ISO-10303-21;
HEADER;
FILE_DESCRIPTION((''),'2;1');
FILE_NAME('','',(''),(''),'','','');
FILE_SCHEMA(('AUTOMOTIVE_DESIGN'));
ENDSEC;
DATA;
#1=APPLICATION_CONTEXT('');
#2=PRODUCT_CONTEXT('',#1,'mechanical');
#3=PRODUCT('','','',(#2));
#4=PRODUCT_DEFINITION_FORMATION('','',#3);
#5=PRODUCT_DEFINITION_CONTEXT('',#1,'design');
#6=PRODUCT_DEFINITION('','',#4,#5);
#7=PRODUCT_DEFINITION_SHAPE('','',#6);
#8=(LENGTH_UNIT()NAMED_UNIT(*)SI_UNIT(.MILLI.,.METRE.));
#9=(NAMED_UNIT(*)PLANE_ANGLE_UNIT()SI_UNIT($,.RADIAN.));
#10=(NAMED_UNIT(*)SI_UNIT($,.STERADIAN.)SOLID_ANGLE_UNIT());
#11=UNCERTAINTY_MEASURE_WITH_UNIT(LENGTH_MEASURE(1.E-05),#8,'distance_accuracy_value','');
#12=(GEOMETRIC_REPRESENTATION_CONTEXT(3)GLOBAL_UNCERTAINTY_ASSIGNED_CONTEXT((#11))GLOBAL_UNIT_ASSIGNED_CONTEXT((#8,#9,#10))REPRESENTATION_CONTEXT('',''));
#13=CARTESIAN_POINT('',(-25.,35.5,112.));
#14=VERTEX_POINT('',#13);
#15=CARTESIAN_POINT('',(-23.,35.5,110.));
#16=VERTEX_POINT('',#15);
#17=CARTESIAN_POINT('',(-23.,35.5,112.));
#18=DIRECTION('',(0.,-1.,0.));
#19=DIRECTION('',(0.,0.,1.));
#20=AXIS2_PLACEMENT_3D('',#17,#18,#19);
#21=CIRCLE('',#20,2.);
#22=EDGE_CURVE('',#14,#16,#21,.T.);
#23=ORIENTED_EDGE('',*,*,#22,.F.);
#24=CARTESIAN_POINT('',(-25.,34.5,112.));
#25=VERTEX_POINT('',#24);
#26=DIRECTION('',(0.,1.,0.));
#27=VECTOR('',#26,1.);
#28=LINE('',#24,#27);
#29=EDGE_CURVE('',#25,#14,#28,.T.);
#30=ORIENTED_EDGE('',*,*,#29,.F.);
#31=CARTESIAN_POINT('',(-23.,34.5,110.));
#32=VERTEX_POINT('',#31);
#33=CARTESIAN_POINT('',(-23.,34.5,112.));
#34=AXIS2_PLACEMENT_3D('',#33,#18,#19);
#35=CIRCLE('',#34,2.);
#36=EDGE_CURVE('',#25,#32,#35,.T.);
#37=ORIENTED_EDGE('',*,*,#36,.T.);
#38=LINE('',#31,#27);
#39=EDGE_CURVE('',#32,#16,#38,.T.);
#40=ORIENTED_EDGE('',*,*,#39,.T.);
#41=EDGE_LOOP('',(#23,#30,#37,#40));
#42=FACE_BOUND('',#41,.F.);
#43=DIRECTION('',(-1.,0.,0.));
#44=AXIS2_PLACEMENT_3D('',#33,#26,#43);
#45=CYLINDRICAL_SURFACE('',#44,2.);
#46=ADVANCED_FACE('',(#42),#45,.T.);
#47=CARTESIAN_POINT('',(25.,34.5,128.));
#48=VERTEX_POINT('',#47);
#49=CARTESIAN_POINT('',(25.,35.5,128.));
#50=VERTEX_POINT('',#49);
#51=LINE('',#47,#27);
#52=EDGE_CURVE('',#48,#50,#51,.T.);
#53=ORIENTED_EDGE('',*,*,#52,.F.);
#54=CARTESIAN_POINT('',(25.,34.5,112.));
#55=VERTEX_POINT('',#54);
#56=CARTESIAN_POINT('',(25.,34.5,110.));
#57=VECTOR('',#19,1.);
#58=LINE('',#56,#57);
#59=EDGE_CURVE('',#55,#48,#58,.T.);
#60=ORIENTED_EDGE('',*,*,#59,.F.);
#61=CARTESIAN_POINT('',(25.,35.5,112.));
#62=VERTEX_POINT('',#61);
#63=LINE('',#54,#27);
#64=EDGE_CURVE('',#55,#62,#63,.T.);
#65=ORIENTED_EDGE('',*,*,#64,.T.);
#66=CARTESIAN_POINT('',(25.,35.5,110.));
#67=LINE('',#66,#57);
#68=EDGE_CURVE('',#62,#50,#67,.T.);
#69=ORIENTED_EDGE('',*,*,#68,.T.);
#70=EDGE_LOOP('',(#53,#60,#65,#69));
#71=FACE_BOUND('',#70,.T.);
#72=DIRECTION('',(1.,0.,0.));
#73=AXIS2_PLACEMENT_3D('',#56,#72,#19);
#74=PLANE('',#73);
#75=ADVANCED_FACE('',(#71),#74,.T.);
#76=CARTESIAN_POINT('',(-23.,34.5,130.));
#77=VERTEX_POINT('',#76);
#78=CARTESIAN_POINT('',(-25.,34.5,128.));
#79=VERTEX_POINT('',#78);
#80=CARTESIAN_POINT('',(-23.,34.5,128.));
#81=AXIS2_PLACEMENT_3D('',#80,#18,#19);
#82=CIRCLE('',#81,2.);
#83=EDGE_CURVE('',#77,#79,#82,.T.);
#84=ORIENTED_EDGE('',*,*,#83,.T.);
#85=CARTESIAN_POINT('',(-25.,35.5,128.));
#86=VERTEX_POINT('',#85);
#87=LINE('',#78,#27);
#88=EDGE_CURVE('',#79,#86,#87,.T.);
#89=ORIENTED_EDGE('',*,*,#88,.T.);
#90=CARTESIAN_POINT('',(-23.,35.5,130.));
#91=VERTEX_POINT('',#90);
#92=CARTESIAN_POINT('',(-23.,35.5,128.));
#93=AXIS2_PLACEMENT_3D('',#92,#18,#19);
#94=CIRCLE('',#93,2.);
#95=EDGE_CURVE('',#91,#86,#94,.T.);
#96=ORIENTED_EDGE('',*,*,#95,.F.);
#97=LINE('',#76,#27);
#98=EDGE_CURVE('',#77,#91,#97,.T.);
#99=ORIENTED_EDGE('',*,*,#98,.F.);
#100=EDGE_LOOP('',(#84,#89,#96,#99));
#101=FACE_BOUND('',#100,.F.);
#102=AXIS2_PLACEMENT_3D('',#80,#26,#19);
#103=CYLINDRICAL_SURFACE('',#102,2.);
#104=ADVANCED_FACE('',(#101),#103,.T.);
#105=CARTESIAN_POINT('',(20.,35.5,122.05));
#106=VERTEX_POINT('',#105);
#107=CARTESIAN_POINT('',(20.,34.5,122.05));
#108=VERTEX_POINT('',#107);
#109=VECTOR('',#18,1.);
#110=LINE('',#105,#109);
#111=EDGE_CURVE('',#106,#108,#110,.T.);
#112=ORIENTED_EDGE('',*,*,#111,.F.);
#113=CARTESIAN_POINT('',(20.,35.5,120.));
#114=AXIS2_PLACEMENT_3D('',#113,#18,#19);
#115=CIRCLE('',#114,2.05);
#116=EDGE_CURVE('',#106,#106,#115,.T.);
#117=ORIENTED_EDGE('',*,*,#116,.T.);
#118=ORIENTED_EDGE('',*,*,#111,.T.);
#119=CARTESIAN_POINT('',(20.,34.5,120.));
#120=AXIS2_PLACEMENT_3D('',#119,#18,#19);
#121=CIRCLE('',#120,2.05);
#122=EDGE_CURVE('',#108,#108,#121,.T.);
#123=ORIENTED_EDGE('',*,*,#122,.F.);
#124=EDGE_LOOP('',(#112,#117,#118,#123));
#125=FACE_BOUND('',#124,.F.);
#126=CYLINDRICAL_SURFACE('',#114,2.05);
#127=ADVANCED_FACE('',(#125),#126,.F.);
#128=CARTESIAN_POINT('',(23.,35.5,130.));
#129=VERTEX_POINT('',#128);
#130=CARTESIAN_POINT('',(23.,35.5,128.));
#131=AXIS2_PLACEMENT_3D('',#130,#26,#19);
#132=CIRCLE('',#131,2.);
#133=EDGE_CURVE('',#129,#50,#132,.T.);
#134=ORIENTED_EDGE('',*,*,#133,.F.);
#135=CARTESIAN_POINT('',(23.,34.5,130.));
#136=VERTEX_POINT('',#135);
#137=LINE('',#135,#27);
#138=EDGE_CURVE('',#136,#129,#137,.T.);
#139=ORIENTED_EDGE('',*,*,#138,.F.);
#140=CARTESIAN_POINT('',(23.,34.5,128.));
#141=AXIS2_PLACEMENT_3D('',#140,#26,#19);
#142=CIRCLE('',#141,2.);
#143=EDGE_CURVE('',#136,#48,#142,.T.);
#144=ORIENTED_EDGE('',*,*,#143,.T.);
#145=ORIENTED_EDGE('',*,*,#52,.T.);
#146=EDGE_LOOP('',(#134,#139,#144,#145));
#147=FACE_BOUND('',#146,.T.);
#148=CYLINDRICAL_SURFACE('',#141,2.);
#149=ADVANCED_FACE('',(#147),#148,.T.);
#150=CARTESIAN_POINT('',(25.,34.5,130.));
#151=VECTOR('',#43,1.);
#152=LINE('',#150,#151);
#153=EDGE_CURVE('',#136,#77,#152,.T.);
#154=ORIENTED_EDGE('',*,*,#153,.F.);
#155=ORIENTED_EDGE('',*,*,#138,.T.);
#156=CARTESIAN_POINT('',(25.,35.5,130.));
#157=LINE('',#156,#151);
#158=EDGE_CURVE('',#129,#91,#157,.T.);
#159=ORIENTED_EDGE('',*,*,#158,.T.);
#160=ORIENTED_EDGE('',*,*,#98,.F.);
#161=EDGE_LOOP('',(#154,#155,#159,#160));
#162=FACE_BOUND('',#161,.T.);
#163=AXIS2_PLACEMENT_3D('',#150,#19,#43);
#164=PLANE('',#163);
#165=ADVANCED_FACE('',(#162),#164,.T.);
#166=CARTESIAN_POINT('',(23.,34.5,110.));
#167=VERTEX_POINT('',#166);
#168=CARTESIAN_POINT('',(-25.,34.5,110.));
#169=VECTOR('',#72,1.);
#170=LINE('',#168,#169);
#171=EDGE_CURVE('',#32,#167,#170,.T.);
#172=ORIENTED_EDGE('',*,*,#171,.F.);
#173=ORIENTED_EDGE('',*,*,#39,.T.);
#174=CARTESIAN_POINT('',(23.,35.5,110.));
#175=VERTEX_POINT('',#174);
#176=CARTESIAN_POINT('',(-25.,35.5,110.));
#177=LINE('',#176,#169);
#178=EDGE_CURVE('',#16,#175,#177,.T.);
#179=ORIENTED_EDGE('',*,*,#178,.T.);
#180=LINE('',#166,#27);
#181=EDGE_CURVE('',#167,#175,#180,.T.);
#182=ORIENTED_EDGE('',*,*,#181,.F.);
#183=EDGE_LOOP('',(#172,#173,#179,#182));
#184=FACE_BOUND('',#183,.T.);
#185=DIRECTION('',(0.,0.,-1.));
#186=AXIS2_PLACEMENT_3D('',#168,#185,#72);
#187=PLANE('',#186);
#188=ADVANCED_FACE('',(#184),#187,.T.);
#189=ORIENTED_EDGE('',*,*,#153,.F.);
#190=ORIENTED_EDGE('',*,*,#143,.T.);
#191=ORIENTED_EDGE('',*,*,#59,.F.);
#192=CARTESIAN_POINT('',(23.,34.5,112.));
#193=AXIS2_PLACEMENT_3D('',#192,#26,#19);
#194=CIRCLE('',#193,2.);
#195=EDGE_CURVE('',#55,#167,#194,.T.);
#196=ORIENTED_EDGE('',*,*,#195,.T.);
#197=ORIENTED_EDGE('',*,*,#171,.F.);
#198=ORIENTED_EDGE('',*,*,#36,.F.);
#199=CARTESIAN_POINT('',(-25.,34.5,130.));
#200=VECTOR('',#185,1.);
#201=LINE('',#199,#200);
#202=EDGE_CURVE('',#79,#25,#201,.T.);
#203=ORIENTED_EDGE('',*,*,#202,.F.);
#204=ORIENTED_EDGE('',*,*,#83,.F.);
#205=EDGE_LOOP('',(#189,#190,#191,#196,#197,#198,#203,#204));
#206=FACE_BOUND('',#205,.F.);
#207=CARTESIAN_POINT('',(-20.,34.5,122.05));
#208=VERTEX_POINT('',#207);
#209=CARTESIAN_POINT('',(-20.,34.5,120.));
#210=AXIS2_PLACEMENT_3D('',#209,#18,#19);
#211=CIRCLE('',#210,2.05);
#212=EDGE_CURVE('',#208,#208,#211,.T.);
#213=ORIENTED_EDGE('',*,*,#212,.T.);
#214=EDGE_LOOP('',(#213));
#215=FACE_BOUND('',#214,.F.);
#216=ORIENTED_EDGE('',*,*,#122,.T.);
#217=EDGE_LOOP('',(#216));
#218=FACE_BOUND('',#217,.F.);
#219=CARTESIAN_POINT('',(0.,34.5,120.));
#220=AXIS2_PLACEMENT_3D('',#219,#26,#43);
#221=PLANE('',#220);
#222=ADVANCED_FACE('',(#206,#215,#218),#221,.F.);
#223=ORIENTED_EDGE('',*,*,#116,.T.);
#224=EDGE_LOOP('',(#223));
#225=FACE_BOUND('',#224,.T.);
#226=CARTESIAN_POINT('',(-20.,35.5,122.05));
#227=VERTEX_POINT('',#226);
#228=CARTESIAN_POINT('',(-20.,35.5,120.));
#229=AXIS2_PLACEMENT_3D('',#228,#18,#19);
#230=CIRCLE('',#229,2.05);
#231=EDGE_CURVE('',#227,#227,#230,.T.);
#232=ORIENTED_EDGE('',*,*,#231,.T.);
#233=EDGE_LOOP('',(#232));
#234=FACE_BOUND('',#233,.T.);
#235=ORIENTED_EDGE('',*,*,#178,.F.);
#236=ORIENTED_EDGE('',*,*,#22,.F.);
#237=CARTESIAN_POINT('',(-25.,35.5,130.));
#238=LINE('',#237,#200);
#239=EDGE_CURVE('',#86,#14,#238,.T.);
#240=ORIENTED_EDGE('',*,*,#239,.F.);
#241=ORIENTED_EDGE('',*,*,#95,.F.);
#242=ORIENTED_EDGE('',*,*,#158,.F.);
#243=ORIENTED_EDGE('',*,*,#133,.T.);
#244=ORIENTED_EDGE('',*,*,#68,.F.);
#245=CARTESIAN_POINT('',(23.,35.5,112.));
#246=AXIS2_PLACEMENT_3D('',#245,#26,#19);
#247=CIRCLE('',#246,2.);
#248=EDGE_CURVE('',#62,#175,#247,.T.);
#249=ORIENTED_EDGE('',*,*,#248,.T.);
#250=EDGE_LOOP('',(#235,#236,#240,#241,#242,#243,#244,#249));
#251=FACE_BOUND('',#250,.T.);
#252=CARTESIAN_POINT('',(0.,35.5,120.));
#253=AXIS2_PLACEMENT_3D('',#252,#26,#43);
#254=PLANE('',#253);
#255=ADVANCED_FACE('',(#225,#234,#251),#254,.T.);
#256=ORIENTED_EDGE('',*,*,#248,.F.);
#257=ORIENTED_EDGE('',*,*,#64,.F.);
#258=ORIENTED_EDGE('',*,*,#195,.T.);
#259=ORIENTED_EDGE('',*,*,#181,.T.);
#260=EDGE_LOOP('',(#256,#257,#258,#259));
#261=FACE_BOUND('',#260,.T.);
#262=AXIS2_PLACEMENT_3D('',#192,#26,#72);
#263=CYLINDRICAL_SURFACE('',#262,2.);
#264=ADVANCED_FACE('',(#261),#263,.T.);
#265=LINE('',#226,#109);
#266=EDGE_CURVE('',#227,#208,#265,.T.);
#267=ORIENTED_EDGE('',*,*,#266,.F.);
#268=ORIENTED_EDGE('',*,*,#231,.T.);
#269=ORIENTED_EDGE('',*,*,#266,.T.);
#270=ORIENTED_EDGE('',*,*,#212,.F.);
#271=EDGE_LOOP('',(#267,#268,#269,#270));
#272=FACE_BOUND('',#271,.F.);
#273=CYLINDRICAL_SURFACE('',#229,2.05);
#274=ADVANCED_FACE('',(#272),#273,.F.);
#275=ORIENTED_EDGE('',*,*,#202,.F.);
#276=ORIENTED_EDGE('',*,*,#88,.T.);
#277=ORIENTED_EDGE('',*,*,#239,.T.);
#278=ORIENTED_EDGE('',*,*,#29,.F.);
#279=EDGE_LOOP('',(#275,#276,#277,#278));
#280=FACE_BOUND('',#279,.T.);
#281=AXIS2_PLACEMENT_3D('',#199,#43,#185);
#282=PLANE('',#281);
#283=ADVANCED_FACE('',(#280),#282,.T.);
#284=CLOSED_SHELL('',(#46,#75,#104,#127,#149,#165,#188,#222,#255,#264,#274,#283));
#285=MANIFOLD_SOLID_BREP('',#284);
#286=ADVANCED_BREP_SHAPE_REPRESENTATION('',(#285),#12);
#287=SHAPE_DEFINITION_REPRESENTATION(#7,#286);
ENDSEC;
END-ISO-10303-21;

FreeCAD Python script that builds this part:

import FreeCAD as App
import Part
import Sketcher

V = App.Vector
Q = App.Units.Quantity


def edges_at(feature, points):
    """Names of the edges that pass closest to the given points."""
    edges = feature.Shape.Edges
    near = lambda p: min(range(len(edges)), key=lambda i: edges[i].distToShape(Part.Vertex(*p))[0])
    return sorted({f"Edge{near(p) + 1}" for p in points})


def add_polygon(sketch, points):
    """Adds a closed chain of lines whose ends are joined by coincident constraints."""
    first, n = sketch.GeometryCount, len(points)
    for a, b in zip(points, points[1:] + points[:1]):
        sketch.addGeometry(Part.LineSegment(App.Vector(*a, 0), App.Vector(*b, 0)), False)
    for i in range(n):
        sketch.addConstraint(Sketcher.Constraint("Coincident", first + i, 2, first + (i + 1) % n, 1))

doc = App.newDocument("Part")
body = doc.addObject("PartDesign::Body", "Body")

sketch1 = body.newObject("Sketcher::SketchObject", "Sketch")
sketch1.AttachmentSupport = (doc.getObject("XZ_Plane"), [""])
sketch1.MapMode = "FlatFace"
sketch1.AttachmentOffset = App.Placement(V(0, 0, -34.5), App.Rotation())
add_polygon(sketch1, [(-25, 130), (25, 130), (25, 110), (-25, 110)])
sketch1.addConstraint([
    Sketcher.Constraint("Horizontal", 0),
    Sketcher.Constraint("Vertical", 1),
    Sketcher.Constraint("Horizontal", 2),
    Sketcher.Constraint("Vertical", 3),
    Sketcher.Constraint("DistanceX", 0, 1, 0, 2, Q("50 mm")),
    Sketcher.Constraint("DistanceY", 1, 2, 1, 1, Q("20 mm")),
    Sketcher.Constraint("DistanceX", -1, 1, 0, 2, Q("25 mm")),
    Sketcher.Constraint("DistanceY", -1, 1, 0, 2, Q("130 mm")),
])
pad1 = body.newObject("PartDesign::Pad", "Pad")
pad1.Profile = sketch1
pad1.Length = 1
pad1.Reversed = True

sketch2 = body.newObject("Sketcher::SketchObject", "Sketch001")
sketch2.AttachmentSupport = (doc.getObject("XZ_Plane"), [""])
sketch2.MapMode = "FlatFace"
sketch2.AttachmentOffset = App.Placement(V(0, 0, -35.5), App.Rotation())
sketch2.addGeometry([
    Part.Circle(V(20, 120, 0), V(0, 0, 1), 2),
    Part.Circle(V(-20, 120, 0), V(0, 0, 1), 2),
], False)
sketch2.addConstraint([
    Sketcher.Constraint("Equal", 0, 1),
    Sketcher.Constraint("Symmetric", 0, 3, 1, 3, -2),
    Sketcher.Constraint("Diameter", 0, Q("4.1 mm")),
    Sketcher.Constraint("DistanceX", -1, 1, 0, 3, Q("20 mm")),
    Sketcher.Constraint("DistanceY", -1, 1, 0, 3, Q("120 mm")),
])
doc.recompute()
hole = body.newObject("PartDesign::Hole", "Hole")
hole.Profile = sketch2
hole.ThreadType = "None"
hole.Diameter = 4.1
hole.DepthType = "ThroughAll"
hole.Reversed = True
doc.recompute()

fillet = body.newObject("PartDesign::Fillet", "Fillet")
fillet.Base = (hole, edges_at(hole, [
    (25, 35, 130),
    (25, 35, 110),
    (-25, 35, 130),
    (-25, 35, 110),
]))
fillet.Radius = 2

doc.recompute()
